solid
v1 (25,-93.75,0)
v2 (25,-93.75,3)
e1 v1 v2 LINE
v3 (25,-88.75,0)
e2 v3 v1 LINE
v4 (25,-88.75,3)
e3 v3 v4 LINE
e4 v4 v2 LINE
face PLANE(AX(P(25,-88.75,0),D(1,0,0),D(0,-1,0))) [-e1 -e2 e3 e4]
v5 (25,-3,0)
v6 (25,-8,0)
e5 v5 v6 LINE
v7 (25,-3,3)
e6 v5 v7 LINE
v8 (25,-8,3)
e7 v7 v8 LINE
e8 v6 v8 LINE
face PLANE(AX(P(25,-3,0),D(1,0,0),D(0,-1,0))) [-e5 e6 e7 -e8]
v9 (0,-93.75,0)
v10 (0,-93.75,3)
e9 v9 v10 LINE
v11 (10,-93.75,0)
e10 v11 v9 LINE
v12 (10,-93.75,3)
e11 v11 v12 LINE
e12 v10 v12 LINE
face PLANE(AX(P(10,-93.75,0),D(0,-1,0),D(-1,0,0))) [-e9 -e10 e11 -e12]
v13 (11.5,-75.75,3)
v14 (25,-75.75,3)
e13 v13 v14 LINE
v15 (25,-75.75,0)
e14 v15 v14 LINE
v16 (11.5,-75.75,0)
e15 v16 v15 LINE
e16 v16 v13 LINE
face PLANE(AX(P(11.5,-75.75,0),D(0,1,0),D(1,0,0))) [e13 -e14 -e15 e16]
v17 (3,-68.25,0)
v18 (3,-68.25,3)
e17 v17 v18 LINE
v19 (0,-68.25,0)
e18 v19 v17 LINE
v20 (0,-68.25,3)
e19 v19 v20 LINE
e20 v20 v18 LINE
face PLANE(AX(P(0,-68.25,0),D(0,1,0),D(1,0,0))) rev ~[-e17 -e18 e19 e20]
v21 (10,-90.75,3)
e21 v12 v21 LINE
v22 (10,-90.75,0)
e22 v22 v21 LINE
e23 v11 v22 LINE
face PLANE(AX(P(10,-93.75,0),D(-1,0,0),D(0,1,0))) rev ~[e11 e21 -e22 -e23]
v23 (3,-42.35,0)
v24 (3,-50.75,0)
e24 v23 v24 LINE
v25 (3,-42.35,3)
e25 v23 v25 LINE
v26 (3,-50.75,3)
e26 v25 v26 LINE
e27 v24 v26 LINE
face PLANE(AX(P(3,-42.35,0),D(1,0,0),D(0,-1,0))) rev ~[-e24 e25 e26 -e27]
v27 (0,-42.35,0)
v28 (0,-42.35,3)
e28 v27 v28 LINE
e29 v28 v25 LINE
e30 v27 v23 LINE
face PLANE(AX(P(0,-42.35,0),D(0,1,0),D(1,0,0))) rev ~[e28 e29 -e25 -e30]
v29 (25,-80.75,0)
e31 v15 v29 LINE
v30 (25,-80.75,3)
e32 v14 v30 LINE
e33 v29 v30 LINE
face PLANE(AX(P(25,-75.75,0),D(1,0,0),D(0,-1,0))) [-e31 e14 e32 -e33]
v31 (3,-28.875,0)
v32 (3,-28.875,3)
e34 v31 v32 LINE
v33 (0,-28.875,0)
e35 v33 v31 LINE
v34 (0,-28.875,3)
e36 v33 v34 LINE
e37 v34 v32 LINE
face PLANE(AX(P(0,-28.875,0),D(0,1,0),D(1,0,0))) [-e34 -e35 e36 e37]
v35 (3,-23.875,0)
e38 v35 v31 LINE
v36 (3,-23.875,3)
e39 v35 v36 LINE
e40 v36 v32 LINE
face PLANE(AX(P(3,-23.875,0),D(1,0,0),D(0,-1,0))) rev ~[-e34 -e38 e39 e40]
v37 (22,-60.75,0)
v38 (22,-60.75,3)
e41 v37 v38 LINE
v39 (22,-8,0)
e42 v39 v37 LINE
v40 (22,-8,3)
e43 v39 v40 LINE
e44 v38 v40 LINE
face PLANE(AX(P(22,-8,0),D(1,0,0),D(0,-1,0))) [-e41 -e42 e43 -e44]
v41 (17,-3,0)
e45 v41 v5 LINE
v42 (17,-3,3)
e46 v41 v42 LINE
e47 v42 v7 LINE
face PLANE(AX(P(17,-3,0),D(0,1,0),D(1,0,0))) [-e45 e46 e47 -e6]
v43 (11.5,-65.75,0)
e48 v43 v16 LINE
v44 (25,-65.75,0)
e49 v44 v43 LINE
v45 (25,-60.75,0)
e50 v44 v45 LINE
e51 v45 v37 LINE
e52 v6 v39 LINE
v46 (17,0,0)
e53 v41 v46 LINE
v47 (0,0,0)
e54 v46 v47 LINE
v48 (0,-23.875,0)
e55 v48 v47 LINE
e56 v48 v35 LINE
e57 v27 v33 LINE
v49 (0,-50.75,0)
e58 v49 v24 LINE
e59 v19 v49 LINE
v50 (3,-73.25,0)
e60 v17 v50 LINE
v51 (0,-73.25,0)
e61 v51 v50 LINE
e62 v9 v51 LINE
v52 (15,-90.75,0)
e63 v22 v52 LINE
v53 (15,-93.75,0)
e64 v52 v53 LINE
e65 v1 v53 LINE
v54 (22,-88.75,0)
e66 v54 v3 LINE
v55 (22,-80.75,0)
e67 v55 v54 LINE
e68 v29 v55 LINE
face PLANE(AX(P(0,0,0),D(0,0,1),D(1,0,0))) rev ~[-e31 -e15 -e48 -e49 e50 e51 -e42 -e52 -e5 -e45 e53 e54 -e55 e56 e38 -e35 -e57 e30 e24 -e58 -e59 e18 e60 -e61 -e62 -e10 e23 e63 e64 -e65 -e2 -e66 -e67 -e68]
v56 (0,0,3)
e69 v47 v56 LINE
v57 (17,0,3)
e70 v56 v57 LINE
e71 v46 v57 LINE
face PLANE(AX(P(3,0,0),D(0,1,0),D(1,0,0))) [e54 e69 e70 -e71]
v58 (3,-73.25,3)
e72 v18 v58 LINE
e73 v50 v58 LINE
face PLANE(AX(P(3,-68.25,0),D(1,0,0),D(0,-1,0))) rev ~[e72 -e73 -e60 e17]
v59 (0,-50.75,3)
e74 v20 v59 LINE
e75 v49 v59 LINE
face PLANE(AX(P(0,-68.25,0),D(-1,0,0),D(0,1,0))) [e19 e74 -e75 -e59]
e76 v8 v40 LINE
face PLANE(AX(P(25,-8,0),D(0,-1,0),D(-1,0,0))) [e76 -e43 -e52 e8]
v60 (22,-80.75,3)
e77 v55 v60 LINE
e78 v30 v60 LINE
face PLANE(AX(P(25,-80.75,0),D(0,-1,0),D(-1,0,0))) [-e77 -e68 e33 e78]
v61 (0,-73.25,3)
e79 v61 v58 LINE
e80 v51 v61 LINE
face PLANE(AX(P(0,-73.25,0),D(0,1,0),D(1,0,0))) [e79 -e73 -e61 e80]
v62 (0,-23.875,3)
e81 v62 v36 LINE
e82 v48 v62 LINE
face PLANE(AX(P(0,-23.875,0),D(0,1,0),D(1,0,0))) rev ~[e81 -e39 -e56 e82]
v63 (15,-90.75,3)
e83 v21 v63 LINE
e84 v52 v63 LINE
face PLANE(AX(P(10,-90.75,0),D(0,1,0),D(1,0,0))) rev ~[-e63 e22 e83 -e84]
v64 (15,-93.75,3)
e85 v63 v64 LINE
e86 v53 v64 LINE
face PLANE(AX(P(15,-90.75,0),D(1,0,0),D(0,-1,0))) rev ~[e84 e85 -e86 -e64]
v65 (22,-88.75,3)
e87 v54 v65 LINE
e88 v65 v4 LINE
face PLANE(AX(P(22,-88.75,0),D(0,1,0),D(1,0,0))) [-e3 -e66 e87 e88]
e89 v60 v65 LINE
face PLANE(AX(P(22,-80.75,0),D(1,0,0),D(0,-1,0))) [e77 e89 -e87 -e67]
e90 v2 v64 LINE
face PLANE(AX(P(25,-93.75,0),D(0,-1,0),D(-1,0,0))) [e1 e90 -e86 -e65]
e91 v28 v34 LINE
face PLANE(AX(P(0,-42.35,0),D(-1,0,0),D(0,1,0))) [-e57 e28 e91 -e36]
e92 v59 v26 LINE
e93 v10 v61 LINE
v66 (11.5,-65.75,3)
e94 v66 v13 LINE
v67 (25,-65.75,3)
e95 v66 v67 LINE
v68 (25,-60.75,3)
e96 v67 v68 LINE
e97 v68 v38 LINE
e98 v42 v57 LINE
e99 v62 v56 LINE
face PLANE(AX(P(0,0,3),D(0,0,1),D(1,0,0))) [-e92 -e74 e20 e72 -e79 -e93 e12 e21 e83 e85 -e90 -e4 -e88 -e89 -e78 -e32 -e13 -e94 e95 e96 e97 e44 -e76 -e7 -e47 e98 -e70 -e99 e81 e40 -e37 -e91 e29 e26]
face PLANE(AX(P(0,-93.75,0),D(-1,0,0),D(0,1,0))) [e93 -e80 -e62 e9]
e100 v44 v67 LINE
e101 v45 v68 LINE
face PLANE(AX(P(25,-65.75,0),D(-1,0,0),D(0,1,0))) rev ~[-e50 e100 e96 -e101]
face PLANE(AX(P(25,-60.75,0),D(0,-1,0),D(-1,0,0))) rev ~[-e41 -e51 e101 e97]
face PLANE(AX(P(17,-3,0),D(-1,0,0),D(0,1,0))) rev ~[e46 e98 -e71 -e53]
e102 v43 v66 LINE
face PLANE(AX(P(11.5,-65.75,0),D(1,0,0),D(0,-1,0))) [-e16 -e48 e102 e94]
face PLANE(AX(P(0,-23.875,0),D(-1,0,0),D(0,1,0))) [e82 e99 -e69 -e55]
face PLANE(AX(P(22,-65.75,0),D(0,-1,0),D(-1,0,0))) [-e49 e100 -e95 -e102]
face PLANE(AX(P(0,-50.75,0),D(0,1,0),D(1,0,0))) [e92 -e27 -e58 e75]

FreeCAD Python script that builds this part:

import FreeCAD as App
import Part
import Sketcher
from FreeCAD import Vector

doc = App.newDocument("Part")
body = doc.addObject("PartDesign::Body", "Body")

sketch1 = body.newObject("Sketcher::SketchObject", "Sketch")
sketch1.AttachmentSupport = (doc.getObject("XY_Plane"), [""])
sketch1.MapMode = "FlatFace"
sketch1.addGeometry(Part.LineSegment(Vector(17, 0, 0), Vector(0, 0, 0)), False)
sketch1.addGeometry(Part.LineSegment(Vector(0, 0, 0), Vector(0, -23.875, 0)), False)
sketch1.addGeometry(Part.LineSegment(Vector(0, -23.875, 0), Vector(3, -23.875, 0)), False)
sketch1.addGeometry(Part.LineSegment(Vector(3, -23.875, 0), Vector(3, -28.875, 0)), False)
sketch1.addGeometry(Part.LineSegment(Vector(3, -28.875, 0), Vector(0, -28.875, 0)), False)
sketch1.addGeometry(Part.LineSegment(Vector(0, -28.875, 0), Vector(0, -42.35, 0)), False)
sketch1.addGeometry(Part.LineSegment(Vector(0, -42.35, 0), Vector(3, -42.35, 0)), False)
sketch1.addGeometry(Part.LineSegment(Vector(3, -42.35, 0), Vector(3, -50.75, 0)), False)
sketch1.addGeometry(Part.LineSegment(Vector(3, -50.75, 0), Vector(0, -50.75, 0)), False)
sketch1.addGeometry(Part.LineSegment(Vector(0, -50.75, 0), Vector(0, -68.25, 0)), False)
sketch1.addGeometry(Part.LineSegment(Vector(0, -68.25, 0), Vector(3, -68.25, 0)), False)
sketch1.addGeometry(Part.LineSegment(Vector(3, -68.25, 0), Vector(3, -73.25, 0)), False)
sketch1.addGeometry(Part.LineSegment(Vector(3, -73.25, 0), Vector(0, -73.25, 0)), False)
sketch1.addGeometry(Part.LineSegment(Vector(0, -73.25, 0), Vector(0, -93.75, 0)), False)
sketch1.addGeometry(Part.LineSegment(Vector(0, -93.75, 0), Vector(10, -93.75, 0)), False)
sketch1.addGeometry(Part.LineSegment(Vector(10, -93.75, 0), Vector(10, -90.75, 0)), False)
sketch1.addGeometry(Part.LineSegment(Vector(10, -90.75, 0), Vector(15, -90.75, 0)), False)
sketch1.addGeometry(Part.LineSegment(Vector(15, -90.75, 0), Vector(15, -93.75, 0)), False)
sketch1.addGeometry(Part.LineSegment(Vector(15, -93.75, 0), Vector(25, -93.75, 0)), False)
sketch1.addGeometry(Part.LineSegment(Vector(25, -93.75, 0), Vector(25, -88.75, 0)), False)
sketch1.addGeometry(Part.LineSegment(Vector(25, -88.75, 0), Vector(22, -88.75, 0)), False)
sketch1.addGeometry(Part.LineSegment(Vector(22, -88.75, 0), Vector(22, -80.75, 0)), False)
sketch1.addGeometry(Part.LineSegment(Vector(22, -80.75, 0), Vector(25, -80.75, 0)), False)
sketch1.addGeometry(Part.LineSegment(Vector(25, -80.75, 0), Vector(25, -75.75, 0)), False)
sketch1.addGeometry(Part.LineSegment(Vector(25, -75.75, 0), Vector(11.5, -75.75, 0)), False)
sketch1.addGeometry(Part.LineSegment(Vector(11.5, -75.75, 0), Vector(11.5, -65.75, 0)), False)
sketch1.addGeometry(Part.LineSegment(Vector(11.5, -65.75, 0), Vector(25, -65.75, 0)), False)
sketch1.addGeometry(Part.LineSegment(Vector(25, -65.75, 0), Vector(25, -60.75, 0)), False)
sketch1.addGeometry(Part.LineSegment(Vector(25, -60.75, 0), Vector(22, -60.75, 0)), False)
sketch1.addGeometry(Part.LineSegment(Vector(22, -60.75, 0), Vector(22, -8, 0)), False)
sketch1.addGeometry(Part.LineSegment(Vector(22, -8, 0), Vector(25, -8, 0)), False)
sketch1.addGeometry(Part.LineSegment(Vector(25, -8, 0), Vector(25, -3, 0)), False)
sketch1.addGeometry(Part.LineSegment(Vector(25, -3, 0), Vector(17, -3, 0)), False)
sketch1.addGeometry(Part.LineSegment(Vector(17, -3, 0), Vector(17, 0, 0)), False)
sketch1.addConstraint(Sketcher.Constraint("Coincident", 0, 2, 1, 1))
sketch1.addConstraint(Sketcher.Constraint("Coincident", 1, 2, 2, 1))
sketch1.addConstraint(Sketcher.Constraint("Coincident", 2, 2, 3, 1))
sketch1.addConstraint(Sketcher.Constraint("Coincident", 3, 2, 4, 1))
sketch1.addConstraint(Sketcher.Constraint("Coincident", 4, 2, 5, 1))
sketch1.addConstraint(Sketcher.Constraint("Coincident", 5, 2, 6, 1))
sketch1.addConstraint(Sketcher.Constraint("Coincident", 6, 2, 7, 1))
sketch1.addConstraint(Sketcher.Constraint("Coincident", 7, 2, 8, 1))
sketch1.addConstraint(Sketcher.Constraint("Coincident", 8, 2, 9, 1))
sketch1.addConstraint(Sketcher.Constraint("Coincident", 9, 2, 10, 1))
sketch1.addConstraint(Sketcher.Constraint("Coincident", 10, 2, 11, 1))
sketch1.addConstraint(Sketcher.Constraint("Coincident", 11, 2, 12, 1))
sketch1.addConstraint(Sketcher.Constraint("Coincident", 12, 2, 13, 1))
sketch1.addConstraint(Sketcher.Constraint("Coincident", 13, 2, 14, 1))
sketch1.addConstraint(Sketcher.Constraint("Coincident", 14, 2, 15, 1))
sketch1.addConstraint(Sketcher.Constraint("Coincident", 15, 2, 16, 1))
sketch1.addConstraint(Sketcher.Constraint("Coincident", 16, 2, 17, 1))
sketch1.addConstraint(Sketcher.Constraint("Coincident", 17, 2, 18, 1))
sketch1.addConstraint(Sketcher.Constraint("Coincident", 18, 2, 19, 1))
sketch1.addConstraint(Sketcher.Constraint("Coincident", 19, 2, 20, 1))
sketch1.addConstraint(Sketcher.Constraint("Coincident", 20, 2, 21, 1))
sketch1.addConstraint(Sketcher.Constraint("Coincident", 21, 2, 22, 1))
sketch1.addConstraint(Sketcher.Constraint("Coincident", 22, 2, 23, 1))
sketch1.addConstraint(Sketcher.Constraint("Coincident", 23, 2, 24, 1))
sketch1.addConstraint(Sketcher.Constraint("Coincident", 24, 2, 25, 1))
sketch1.addConstraint(Sketcher.Constraint("Coincident", 25, 2, 26, 1))
sketch1.addConstraint(Sketcher.Constraint("Coincident", 26, 2, 27, 1))
sketch1.addConstraint(Sketcher.Constraint("Coincident", 27, 2, 28, 1))
sketch1.addConstraint(Sketcher.Constraint("Coincident", 28, 2, 29, 1))
sketch1.addConstraint(Sketcher.Constraint("Coincident", 29, 2, 30, 1))
sketch1.addConstraint(Sketcher.Constraint("Coincident", 30, 2, 31, 1))
sketch1.addConstraint(Sketcher.Constraint("Coincident", 31, 2, 32, 1))
sketch1.addConstraint(Sketcher.Constraint("Coincident", 32, 2, 33, 1))
sketch1.addConstraint(Sketcher.Constraint("Coincident", 33, 2, 0, 1))
sketch1.addConstraint(Sketcher.Constraint("Horizontal", 0))
sketch1.addConstraint(Sketcher.Constraint("Vertical", 1))
sketch1.addConstraint(Sketcher.Constraint("Horizontal", 2))
sketch1.addConstraint(Sketcher.Constraint("Vertical", 3))
sketch1.addConstraint(Sketcher.Constraint("Horizontal", 4))
sketch1.addConstraint(Sketcher.Constraint("Vertical", 5))
sketch1.addConstraint(Sketcher.Constraint("Horizontal", 6))
sketch1.addConstraint(Sketcher.Constraint("Vertical", 7))
sketch1.addConstraint(Sketcher.Constraint("Horizontal", 8))
sketch1.addConstraint(Sketcher.Constraint("Vertical", 9))
sketch1.addConstraint(Sketcher.Constraint("Horizontal", 10))
sketch1.addConstraint(Sketcher.Constraint("Vertical", 11))
sketch1.addConstraint(Sketcher.Constraint("Horizontal", 12))
sketch1.addConstraint(Sketcher.Constraint("Vertical", 13))
sketch1.addConstraint(Sketcher.Constraint("Horizontal", 14))
sketch1.addConstraint(Sketcher.Constraint("Vertical", 15))
sketch1.addConstraint(Sketcher.Constraint("Horizontal", 16))
sketch1.addConstraint(Sketcher.Constraint("Vertical", 17))
sketch1.addConstraint(Sketcher.Constraint("Horizontal", 18))
sketch1.addConstraint(Sketcher.Constraint("Vertical", 19))
sketch1.addConstraint(Sketcher.Constraint("Horizontal", 20))
sketch1.addConstraint(Sketcher.Constraint("Vertical", 21))
sketch1.addConstraint(Sketcher.Constraint("Horizontal", 22))
sketch1.addConstraint(Sketcher.Constraint("Vertical", 23))
sketch1.addConstraint(Sketcher.Constraint("Horizontal", 24))
sketch1.addConstraint(Sketcher.Constraint("Vertical", 25))
sketch1.addConstraint(Sketcher.Constraint("Horizontal", 26))
sketch1.addConstraint(Sketcher.Constraint("Vertical", 27))
sketch1.addConstraint(Sketcher.Constraint("Horizontal", 28))
sketch1.addConstraint(Sketcher.Constraint("Vertical", 29))
sketch1.addConstraint(Sketcher.Constraint("Horizontal", 30))
sketch1.addConstraint(Sketcher.Constraint("Vertical", 31))
sketch1.addConstraint(Sketcher.Constraint("Horizontal", 32))
sketch1.addConstraint(Sketcher.Constraint("Vertical", 33))
sketch1.addConstraint(Sketcher.Constraint("Coincident", 0, 2, -1, 1))
sketch1.addConstraint(Sketcher.Constraint("PointOnObject", 4, 2, -2))
sketch1.addConstraint(Sketcher.Constraint("PointOnObject", 8, 2, -2))
sketch1.addConstraint(Sketcher.Constraint("PointOnObject", 12, 2, -2))
sketch1.addConstraint(Sketcher.Constraint("Horizontal", 14, 2, 17, 2))
sketch1.addConstraint(Sketcher.Constraint("Vertical", 3, 2, 6, 2))
sketch1.addConstraint(Sketcher.Constraint("Vertical", 7, 2, 10, 2))
sketch1.addConstraint(Sketcher.Constraint("Vertical", 19, 2, 22, 2))
sketch1.addConstraint(Sketcher.Constraint("Vertical", 23, 2, 26, 2))
sketch1.addConstraint(Sketcher.Constraint("Vertical", 21, 2, 28, 2))
sketch1.addConstraint(Sketcher.Constraint("Vertical", 27, 2, 30, 2))
sketch1.addConstraint(Sketcher.Constraint("Equal", 14, 18))
sketch1.addConstraint(Sketcher.Constraint("Equal", 12, 20))
sketch1.addConstraint(Sketcher.Constraint("Equal", 16, 3))
sketch1.addConstraint(Sketcher.Constraint("Equal", 3, 11))
sketch1.addConstraint(Sketcher.Constraint("Equal", 30, 15))
sketch1.addConstraint(Sketcher.Constraint("Equal", 11, 19))
sketch1.addConstraint(Sketcher.Constraint("Equal", 32, 21))
sketch1.addConstraint(Sketcher.Constraint("Equal", 19, 23))
sketch1.addConstraint(Sketcher.Constraint("Equal", 18, 25))
sketch1.addConstraint(Sketcher.Constraint("Equal", 23, 27))
sketch1.addConstraint(Sketcher.Constraint("Equal", 27, 31))
sketch1.addConstraint(Sketcher.Constraint("Equal", 17, 33))
sketch1.addConstraint(Sketcher.Constraint("DistanceX", 2, 1, 2, 2, 3.0))
sketch1.addConstraint(Sketcher.Constraint("DistanceX", 16, 1, 16, 2, 5.0))
sketch1.addConstraint(Sketcher.Constraint("DistanceX", 32, 2, 29, 2, 5.0))
sketch1.addConstraint(Sketcher.Constraint("DistanceX", 0, 2, 0, 1, 17.0))
sketch1.addConstraint(Sketcher.Constraint("DistanceX", 24, 2, 24, 1, 13.5))
sketch1.addConstraint(Sketcher.Constraint("DistanceY", 7, 2, 7, 1, 8.4))
sketch1.addConstraint(Sketcher.Constraint("DistanceY", 9, 2, 9, 1, 17.5))
sketch1.addConstraint(Sketcher.Constraint("DistanceY", 13, 2, 13, 1, 20.5))
sketch1.addConstraint(Sketcher.Constraint("DistanceY", 29, 1, 29, 2, 52.75))
sketch1.addConstraint(Sketcher.Constraint("DistanceY", 1, 2, 1, 1, 23.875))
pad1 = body.newObject("PartDesign::Pad", "Pad")
pad1.Profile = sketch1
pad1.Length = 3

doc.recompute()
